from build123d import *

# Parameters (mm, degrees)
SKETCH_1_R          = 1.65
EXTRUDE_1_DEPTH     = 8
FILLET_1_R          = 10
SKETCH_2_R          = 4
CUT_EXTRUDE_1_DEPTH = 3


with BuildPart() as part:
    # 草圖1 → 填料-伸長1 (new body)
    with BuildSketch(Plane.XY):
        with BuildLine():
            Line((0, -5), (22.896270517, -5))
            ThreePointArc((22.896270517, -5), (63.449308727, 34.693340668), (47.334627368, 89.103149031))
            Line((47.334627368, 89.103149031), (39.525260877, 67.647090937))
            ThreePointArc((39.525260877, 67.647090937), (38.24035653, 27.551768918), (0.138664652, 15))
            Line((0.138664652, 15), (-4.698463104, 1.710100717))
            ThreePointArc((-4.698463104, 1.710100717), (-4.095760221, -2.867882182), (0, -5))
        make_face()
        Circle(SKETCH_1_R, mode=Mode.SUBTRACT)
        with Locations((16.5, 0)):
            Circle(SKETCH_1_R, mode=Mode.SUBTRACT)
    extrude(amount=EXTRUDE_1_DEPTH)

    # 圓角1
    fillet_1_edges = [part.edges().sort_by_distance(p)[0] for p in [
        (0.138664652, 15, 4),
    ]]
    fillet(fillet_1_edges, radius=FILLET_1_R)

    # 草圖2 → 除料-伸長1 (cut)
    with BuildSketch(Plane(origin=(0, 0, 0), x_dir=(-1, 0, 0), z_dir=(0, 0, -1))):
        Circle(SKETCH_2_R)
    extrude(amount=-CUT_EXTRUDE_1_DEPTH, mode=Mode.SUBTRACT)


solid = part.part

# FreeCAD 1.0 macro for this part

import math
import FreeCAD as App
import Part
import Sketcher

V = App.Vector
Q = App.Units.Quantity


def edges_at(feature, points):
    """Names of the edges that pass closest to the given points."""
    edges = feature.Shape.Edges
    near = lambda p: min(range(len(edges)), key=lambda i: edges[i].distToShape(Part.Vertex(*p))[0])
    return sorted({f"Edge{near(p) + 1}" for p in points})

doc = App.newDocument("Part")
params = doc.addObject("Spreadsheet::Sheet", "Params")
for row, (alias, value) in enumerate([
    ("sketch1_radius", "55 mm"),
    ("sketch1_radius2", "35 mm"),
    ("sketch1_radius3", "5 mm"),
    ("sketch1_diameter", "3.3 mm"),
    ("pad1_length", "8 mm"),
    ("fillet_radius", "10 mm"),
    ("sketch2_diameter", "8 mm"),
    ("pocket1_length", "3 mm"),
], start=1):
    params.set(f"A{row}", alias)
    params.set(f"B{row}", "=" + value)
    params.setAlias(f"B{row}", alias)

body = doc.addObject("PartDesign::Body", "Body")

sketch1 = body.newObject("Sketcher::SketchObject", "Sketch")
sketch1.AttachmentSupport = (doc.getObject("XY_Plane"), [""])
sketch1.MapMode = "FlatFace"
sketch1.addGeometry([
    Part.LineSegment(V(0, -5, 0), V(22.9, -5, 0)),
    Part.ArcOfCircle(Part.Circle(V(10.2, 48.5, 0), V(0, 0, 1), 55), math.radians(-77), math.radians(48)),
    Part.LineSegment(V(47.3, 89.1, 0), V(39.5, 67.6, 0)),
    Part.ArcOfCircle(Part.Circle(V(10.2, 48.5, 0), V(0, 0, 1), 35), math.radians(-107), math.radians(33)),
    Part.LineSegment(V(0.1, 15, 0), V(-4.7, 1.7, 0)),
    Part.ArcOfCircle(Part.Circle(V(0, 0, 0), V(0, 0, 1), 5), math.radians(160), math.radians(270)),
    Part.Circle(V(0, 0, 0), V(0, 0, 1), 1.6),
    Part.Circle(V(16.5, 0, 0), V(0, 0, 1), 1.6),
], False)
sketch1.addConstraint([
    Sketcher.Constraint("Coincident", 0, 2, 1, 1),
    Sketcher.Constraint("Coincident", 1, 2, 2, 1),
    Sketcher.Constraint("Coincident", 2, 2, 3, 2),
    Sketcher.Constraint("Coincident", 3, 1, 4, 1),
    Sketcher.Constraint("Tangent", 4, 2, 5, 1),
    Sketcher.Constraint("Tangent", 5, 2, 0, 1),
    Sketcher.Constraint("Horizontal", 0),
    Sketcher.Constraint("Coincident", 5, 3, -1, 1),
    Sketcher.Constraint("Coincident", 6, 3, -1, 1),
    Sketcher.Constraint("Coincident", 3, 3, 1, 3),
    Sketcher.Constraint("Equal", 6, 7),
    Sketcher.Constraint("PointOnObject", 7, 3, -1),
    Sketcher.Constraint("Parallel", 2, 4),
    Sketcher.Constraint("Radius", 1, 55.0),
    Sketcher.Constraint("Radius", 3, 35.0),
    Sketcher.Constraint("Radius", 5, 5.0),
    Sketcher.Constraint("Diameter", 6, 3.3),
    Sketcher.Constraint("Angle", 2, Q("-110 deg")),
    Sketcher.Constraint("DistanceY", -1, 1, 3, 1, 15.0),
    Sketcher.Constraint("DistanceX", -1, 1, 7, 3, 16.5),
    Sketcher.Constraint("DistanceX", 0, 1, 0, 2, 22.896271),
    Sketcher.Constraint("Distance", 2, 22.83306),
])
sketch1.setExpression("Constraints[13]", "Params.sketch1_radius")
sketch1.setExpression("Constraints[14]", "Params.sketch1_radius2")
sketch1.setExpression("Constraints[15]", "Params.sketch1_radius3")
sketch1.setExpression("Constraints[16]", "Params.sketch1_diameter")
pad1 = body.newObject("PartDesign::Pad", "Pad")
pad1.Profile = sketch1
pad1.setExpression("Length", "Params.pad1_length")
doc.recompute()

fillet = body.newObject("PartDesign::Fillet", "Fillet")
fillet.Base = (pad1, edges_at(pad1, [(0.139, 15, 4)]))
fillet.setExpression("Radius", "Params.fillet_radius")

sketch2 = body.newObject("Sketcher::SketchObject", "Sketch001")
sketch2.AttachmentSupport = (doc.getObject("XY_Plane"), [""])
sketch2.MapMode = "FlatFace"
sketch2.addGeometry(Part.Circle(V(0, 0, 0), V(0, 0, 1), 4), False)
sketch2.addConstraint([
    Sketcher.Constraint("Coincident", 0, 3, -1, 1),
    Sketcher.Constraint("Diameter", 0, 8.0),
])
sketch2.setExpression("Constraints[1]", "Params.sketch2_diameter")
pocket1 = body.newObject("PartDesign::Pocket", "Pocket")
pocket1.Profile = sketch2
pocket1.setExpression("Length", "Params.pocket1_length")
pocket1.Reversed = True

doc.recompute()
